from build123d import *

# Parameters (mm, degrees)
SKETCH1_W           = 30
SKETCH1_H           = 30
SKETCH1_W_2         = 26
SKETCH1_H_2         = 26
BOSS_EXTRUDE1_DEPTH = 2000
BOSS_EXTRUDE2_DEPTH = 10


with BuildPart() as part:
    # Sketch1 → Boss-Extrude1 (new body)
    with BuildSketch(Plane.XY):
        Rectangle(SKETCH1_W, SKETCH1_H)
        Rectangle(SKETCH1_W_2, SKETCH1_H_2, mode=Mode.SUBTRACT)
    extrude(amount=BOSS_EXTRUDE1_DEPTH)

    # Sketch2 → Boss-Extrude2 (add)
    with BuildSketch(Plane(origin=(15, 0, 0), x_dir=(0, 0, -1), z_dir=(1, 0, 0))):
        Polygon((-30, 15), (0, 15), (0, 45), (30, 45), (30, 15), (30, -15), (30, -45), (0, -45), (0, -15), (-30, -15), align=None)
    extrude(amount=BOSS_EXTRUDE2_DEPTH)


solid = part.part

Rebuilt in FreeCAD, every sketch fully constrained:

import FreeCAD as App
import Part
import Sketcher
from FreeCAD import Vector
Q = App.Units.Quantity

doc = App.newDocument("Part")
body = doc.addObject("PartDesign::Body", "Body")

sketch1 = body.newObject("Sketcher::SketchObject", "Sketch")
sketch1.AttachmentSupport = (doc.getObject("XY_Plane"), [""])
sketch1.MapMode = "FlatFace"
sketch1.addGeometry([
    Part.LineSegment(Vector(-15, 15, 0), Vector(-15, -15, 0)),
    Part.LineSegment(Vector(-15, -15, 0), Vector(15, -15, 0)),
    Part.LineSegment(Vector(15, -15, 0), Vector(15, 15, 0)),
    Part.LineSegment(Vector(15, 15, 0), Vector(-15, 15, 0)),
    Part.LineSegment(Vector(13, -13, 0), Vector(-13, -13, 0)),
    Part.LineSegment(Vector(-13, -13, 0), Vector(-13, 13, 0)),
    Part.LineSegment(Vector(-13, 13, 0), Vector(13, 13, 0)),
    Part.LineSegment(Vector(13, 13, 0), Vector(13, -13, 0)),
], False)
sketch1.addConstraint([
    Sketcher.Constraint("Coincident", 0, 2, 1, 1),
    Sketcher.Constraint("Coincident", 1, 2, 2, 1),
    Sketcher.Constraint("Coincident", 2, 2, 3, 1),
    Sketcher.Constraint("Coincident", 3, 2, 0, 1),
    Sketcher.Constraint("Coincident", 4, 2, 5, 1),
    Sketcher.Constraint("Coincident", 5, 2, 6, 1),
    Sketcher.Constraint("Coincident", 6, 2, 7, 1),
    Sketcher.Constraint("Coincident", 7, 2, 4, 1),
    Sketcher.Constraint("Vertical", 0),
    Sketcher.Constraint("Horizontal", 1),
    Sketcher.Constraint("Vertical", 2),
    Sketcher.Constraint("Horizontal", 3),
    Sketcher.Constraint("Horizontal", 4),
    Sketcher.Constraint("Vertical", 5),
    Sketcher.Constraint("Horizontal", 6),
    Sketcher.Constraint("Vertical", 7),
    Sketcher.Constraint("Symmetric", 0, 2, 2, 2, -1, 1),
    Sketcher.Constraint("Symmetric", 4, 2, 6, 2, -1, 1),
    Sketcher.Constraint("Equal", 3, 0),
    Sketcher.Constraint("Equal", 6, 5),
    Sketcher.Constraint("DistanceX", 1, 1, 1, 2, Q("30 mm")),
    Sketcher.Constraint("DistanceX", 4, 2, 4, 1, Q("26 mm")),
])
pad1 = body.newObject("PartDesign::Pad", "Pad")
pad1.Profile = sketch1
pad1.Length = 2000

sketch2 = body.newObject("Sketcher::SketchObject", "Sketch001")
sketch2.AttachmentSupport = (doc.getObject("YZ_Plane"), [""])
sketch2.MapMode = "FlatFace"
sketch2.AttachmentOffset = App.Placement(Vector(0, 0, 15), App.Rotation())
sketch2.addGeometry([
    Part.LineSegment(Vector(15, 0, 0), Vector(15, 30, 0)),
    Part.LineSegment(Vector(15, 30, 0), Vector(-15, 30, 0)),
    Part.LineSegment(Vector(-15, 30, 0), Vector(-15, 0, 0)),
    Part.LineSegment(Vector(-15, 0, 0), Vector(-45, 0, 0)),
    Part.LineSegment(Vector(-45, 0, 0), Vector(-45, -30, 0)),
    Part.LineSegment(Vector(-45, -30, 0), Vector(45, -30, 0)),
    Part.LineSegment(Vector(45, -30, 0), Vector(45, 0, 0)),
    Part.LineSegment(Vector(45, 0, 0), Vector(15, 0, 0)),
], False)
sketch2.addConstraint([
    Sketcher.Constraint("Coincident", 0, 2, 1, 1),
    Sketcher.Constraint("Coincident", 1, 2, 2, 1),
    Sketcher.Constraint("Coincident", 2, 2, 3, 1),
    Sketcher.Constraint("Coincident", 3, 2, 4, 1),
    Sketcher.Constraint("Coincident", 4, 2, 5, 1),
    Sketcher.Constraint("Coincident", 5, 2, 6, 1),
    Sketcher.Constraint("Coincident", 6, 2, 7, 1),
    Sketcher.Constraint("Coincident", 7, 2, 0, 1),
    Sketcher.Constraint("Vertical", 0),
    Sketcher.Constraint("Horizontal", 1),
    Sketcher.Constraint("Vertical", 2),
    Sketcher.Constraint("Horizontal", 3),
    Sketcher.Constraint("Vertical", 4),
    Sketcher.Constraint("Horizontal", 5),
    Sketcher.Constraint("Vertical", 6),
    Sketcher.Constraint("Horizontal", 7),
    Sketcher.Constraint("Symmetric", 3, 2, 6, 2, -1, 1),
    Sketcher.Constraint("Symmetric", 2, 2, 7, 2, -2),
    Sketcher.Constraint("Equal", 1, 3),
    Sketcher.Constraint("Equal", 7, 0),
    Sketcher.Constraint("Equal", 2, 4),
    Sketcher.Constraint("DistanceX", 1, 2, 1, 1, Q("30 mm")),
])
pad2 = body.newObject("PartDesign::Pad", "Pad001")
pad2.Profile = sketch2
pad2.Length = 10

doc.recompute()
